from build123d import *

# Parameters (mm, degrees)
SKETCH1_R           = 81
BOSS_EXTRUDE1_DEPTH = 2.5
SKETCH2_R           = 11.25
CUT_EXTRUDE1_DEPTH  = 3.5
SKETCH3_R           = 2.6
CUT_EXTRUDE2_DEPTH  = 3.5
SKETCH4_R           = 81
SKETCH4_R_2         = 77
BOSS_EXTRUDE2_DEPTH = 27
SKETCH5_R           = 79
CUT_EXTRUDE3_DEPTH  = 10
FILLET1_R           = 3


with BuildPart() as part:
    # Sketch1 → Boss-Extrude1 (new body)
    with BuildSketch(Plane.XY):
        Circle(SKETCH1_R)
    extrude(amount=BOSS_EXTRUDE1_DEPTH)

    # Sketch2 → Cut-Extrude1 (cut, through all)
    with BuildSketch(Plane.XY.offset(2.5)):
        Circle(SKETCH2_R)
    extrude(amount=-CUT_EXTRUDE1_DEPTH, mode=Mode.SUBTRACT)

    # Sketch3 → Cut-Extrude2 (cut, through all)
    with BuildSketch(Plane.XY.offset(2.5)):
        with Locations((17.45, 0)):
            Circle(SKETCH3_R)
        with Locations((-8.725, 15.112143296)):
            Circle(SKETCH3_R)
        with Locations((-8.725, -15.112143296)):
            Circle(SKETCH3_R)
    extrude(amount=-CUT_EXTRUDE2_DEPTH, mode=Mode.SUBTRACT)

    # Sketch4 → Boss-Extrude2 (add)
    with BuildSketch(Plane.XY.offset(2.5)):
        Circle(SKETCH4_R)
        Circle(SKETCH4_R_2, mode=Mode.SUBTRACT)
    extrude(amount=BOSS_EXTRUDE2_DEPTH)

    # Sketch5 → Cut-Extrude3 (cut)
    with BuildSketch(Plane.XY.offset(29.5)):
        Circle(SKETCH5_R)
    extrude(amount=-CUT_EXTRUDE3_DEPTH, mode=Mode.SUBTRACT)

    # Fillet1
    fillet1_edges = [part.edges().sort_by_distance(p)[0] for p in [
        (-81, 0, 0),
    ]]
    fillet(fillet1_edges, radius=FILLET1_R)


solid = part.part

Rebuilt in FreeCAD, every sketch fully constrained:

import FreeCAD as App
import Part
import Sketcher
from FreeCAD import Vector
Q = App.Units.Quantity


def edges_at(feature, points):
    """Names of the edges that pass closest to the given points."""
    edges = feature.Shape.Edges
    near = lambda p: min(range(len(edges)), key=lambda i: edges[i].distToShape(Part.Vertex(*p))[0])
    return sorted({f"Edge{near(p) + 1}" for p in points})

doc = App.newDocument("Part")
body = doc.addObject("PartDesign::Body", "Body")

# Sketch on XY plane
sketch1 = body.newObject("Sketcher::SketchObject", "Sketch")
sketch1.AttachmentSupport = (doc.getObject("XY_Plane"), [""])
sketch1.MapMode = "FlatFace"
sketch1.addGeometry(Part.Circle(Vector(0, 0, 0), Vector(0, 0, 1), 81), False)
sketch1.addConstraint(Sketcher.Constraint("Coincident", 0, 3, -1, 1))
sketch1.addConstraint(Sketcher.Constraint("Diameter", 0, Q("162 mm")))
pad1 = body.newObject("PartDesign::Pad", "Pad")
pad1.Profile = sketch1
pad1.Length = 2.5

# Sketch on XY plane
sketch2 = body.newObject("Sketcher::SketchObject", "Sketch001")
sketch2.AttachmentSupport = (doc.getObject("XY_Plane"), [""])
sketch2.MapMode = "FlatFace"
sketch2.AttachmentOffset = App.Placement(Vector(0, 0, 2.5), App.Rotation())
sketch2.addGeometry(Part.Circle(Vector(0, 0, 0), Vector(0, 0, 1), 11), False)
sketch2.addConstraint(Sketcher.Constraint("Coincident", 0, 3, -1, 1))
sketch2.addConstraint(Sketcher.Constraint("Diameter", 0, Q("22.5 mm")))
pocket1 = body.newObject("PartDesign::Pocket", "Pocket")
pocket1.Profile = sketch2
pocket1.Type = "ThroughAll"

# Sketch on XY plane
sketch3 = body.newObject("Sketcher::SketchObject", "Sketch002")
sketch3.AttachmentSupport = (doc.getObject("XY_Plane"), [""])
sketch3.MapMode = "FlatFace"
sketch3.AttachmentOffset = App.Placement(Vector(0, 0, 2.5), App.Rotation())
sketch3.addGeometry(Part.Circle(Vector(17.4, 0, 0), Vector(0, 0, 1), 2.6), False)
sketch3.addGeometry(Part.Circle(Vector(-8.7, 15.1, 0), Vector(0, 0, 1), 2.6), False)
sketch3.addGeometry(Part.Circle(Vector(-8.7, -15.1, 0), Vector(0, 0, 1), 2.6), False)
sketch3.addConstraint(Sketcher.Constraint("Equal", 0, 1))
sketch3.addConstraint(Sketcher.Constraint("Equal", 1, 2))
sketch3.addConstraint(Sketcher.Constraint("Symmetric", 1, 3, 2, 3, -1))
sketch3.addConstraint(Sketcher.Constraint("PointOnObject", 0, 3, -1))
sketch3.addConstraint(Sketcher.Constraint("Diameter", 0, Q("5.2 mm")))
sketch3.addConstraint(Sketcher.Constraint("DistanceX", -1, 1, 0, 3, Q("17.45 mm")))
sketch3.addConstraint(Sketcher.Constraint("DistanceX", 1, 3, -1, 1, Q("8.725 mm")))
sketch3.addConstraint(Sketcher.Constraint("DistanceY", -1, 1, 1, 3, Q("15.112143 mm")))
pocket2 = body.newObject("PartDesign::Pocket", "Pocket001")
pocket2.Profile = sketch3
pocket2.Type = "ThroughAll"

# Sketch on XY plane
sketch4 = body.newObject("Sketcher::SketchObject", "Sketch003")
sketch4.AttachmentSupport = (doc.getObject("XY_Plane"), [""])
sketch4.MapMode = "FlatFace"
sketch4.AttachmentOffset = App.Placement(Vector(0, 0, 2.5), App.Rotation())
sketch4.addGeometry(Part.Circle(Vector(0, 0, 0), Vector(0, 0, 1), 81), False)
sketch4.addGeometry(Part.Circle(Vector(0, 0, 0), Vector(0, 0, 1), 77), False)
sketch4.addConstraint(Sketcher.Constraint("Coincident", 0, 3, -1, 1))
sketch4.addConstraint(Sketcher.Constraint("Coincident", 1, 3, -1, 1))
sketch4.addConstraint(Sketcher.Constraint("Diameter", 0, Q("162 mm")))
sketch4.addConstraint(Sketcher.Constraint("Diameter", 1, Q("154 mm")))
pad2 = body.newObject("PartDesign::Pad", "Pad001")
pad2.Profile = sketch4
pad2.Length = 27

# Sketch on XY plane
sketch5 = body.newObject("Sketcher::SketchObject", "Sketch004")
sketch5.AttachmentSupport = (doc.getObject("XY_Plane"), [""])
sketch5.MapMode = "FlatFace"
sketch5.AttachmentOffset = App.Placement(Vector(0, 0, 29.5), App.Rotation())
sketch5.addGeometry(Part.Circle(Vector(0, 0, 0), Vector(0, 0, 1), 79), False)
sketch5.addConstraint(Sketcher.Constraint("Coincident", 0, 3, -1, 1))
sketch5.addConstraint(Sketcher.Constraint("Diameter", 0, Q("158 mm")))
pocket3 = body.newObject("PartDesign::Pocket", "Pocket002")
pocket3.Profile = sketch5
pocket3.Length = 10
doc.recompute()

fillet = body.newObject("PartDesign::Fillet", "Fillet")
fillet.Base = (pocket3, edges_at(pocket3, [(-81, 0, 0)]))
fillet.Radius = 3

doc.recompute()
